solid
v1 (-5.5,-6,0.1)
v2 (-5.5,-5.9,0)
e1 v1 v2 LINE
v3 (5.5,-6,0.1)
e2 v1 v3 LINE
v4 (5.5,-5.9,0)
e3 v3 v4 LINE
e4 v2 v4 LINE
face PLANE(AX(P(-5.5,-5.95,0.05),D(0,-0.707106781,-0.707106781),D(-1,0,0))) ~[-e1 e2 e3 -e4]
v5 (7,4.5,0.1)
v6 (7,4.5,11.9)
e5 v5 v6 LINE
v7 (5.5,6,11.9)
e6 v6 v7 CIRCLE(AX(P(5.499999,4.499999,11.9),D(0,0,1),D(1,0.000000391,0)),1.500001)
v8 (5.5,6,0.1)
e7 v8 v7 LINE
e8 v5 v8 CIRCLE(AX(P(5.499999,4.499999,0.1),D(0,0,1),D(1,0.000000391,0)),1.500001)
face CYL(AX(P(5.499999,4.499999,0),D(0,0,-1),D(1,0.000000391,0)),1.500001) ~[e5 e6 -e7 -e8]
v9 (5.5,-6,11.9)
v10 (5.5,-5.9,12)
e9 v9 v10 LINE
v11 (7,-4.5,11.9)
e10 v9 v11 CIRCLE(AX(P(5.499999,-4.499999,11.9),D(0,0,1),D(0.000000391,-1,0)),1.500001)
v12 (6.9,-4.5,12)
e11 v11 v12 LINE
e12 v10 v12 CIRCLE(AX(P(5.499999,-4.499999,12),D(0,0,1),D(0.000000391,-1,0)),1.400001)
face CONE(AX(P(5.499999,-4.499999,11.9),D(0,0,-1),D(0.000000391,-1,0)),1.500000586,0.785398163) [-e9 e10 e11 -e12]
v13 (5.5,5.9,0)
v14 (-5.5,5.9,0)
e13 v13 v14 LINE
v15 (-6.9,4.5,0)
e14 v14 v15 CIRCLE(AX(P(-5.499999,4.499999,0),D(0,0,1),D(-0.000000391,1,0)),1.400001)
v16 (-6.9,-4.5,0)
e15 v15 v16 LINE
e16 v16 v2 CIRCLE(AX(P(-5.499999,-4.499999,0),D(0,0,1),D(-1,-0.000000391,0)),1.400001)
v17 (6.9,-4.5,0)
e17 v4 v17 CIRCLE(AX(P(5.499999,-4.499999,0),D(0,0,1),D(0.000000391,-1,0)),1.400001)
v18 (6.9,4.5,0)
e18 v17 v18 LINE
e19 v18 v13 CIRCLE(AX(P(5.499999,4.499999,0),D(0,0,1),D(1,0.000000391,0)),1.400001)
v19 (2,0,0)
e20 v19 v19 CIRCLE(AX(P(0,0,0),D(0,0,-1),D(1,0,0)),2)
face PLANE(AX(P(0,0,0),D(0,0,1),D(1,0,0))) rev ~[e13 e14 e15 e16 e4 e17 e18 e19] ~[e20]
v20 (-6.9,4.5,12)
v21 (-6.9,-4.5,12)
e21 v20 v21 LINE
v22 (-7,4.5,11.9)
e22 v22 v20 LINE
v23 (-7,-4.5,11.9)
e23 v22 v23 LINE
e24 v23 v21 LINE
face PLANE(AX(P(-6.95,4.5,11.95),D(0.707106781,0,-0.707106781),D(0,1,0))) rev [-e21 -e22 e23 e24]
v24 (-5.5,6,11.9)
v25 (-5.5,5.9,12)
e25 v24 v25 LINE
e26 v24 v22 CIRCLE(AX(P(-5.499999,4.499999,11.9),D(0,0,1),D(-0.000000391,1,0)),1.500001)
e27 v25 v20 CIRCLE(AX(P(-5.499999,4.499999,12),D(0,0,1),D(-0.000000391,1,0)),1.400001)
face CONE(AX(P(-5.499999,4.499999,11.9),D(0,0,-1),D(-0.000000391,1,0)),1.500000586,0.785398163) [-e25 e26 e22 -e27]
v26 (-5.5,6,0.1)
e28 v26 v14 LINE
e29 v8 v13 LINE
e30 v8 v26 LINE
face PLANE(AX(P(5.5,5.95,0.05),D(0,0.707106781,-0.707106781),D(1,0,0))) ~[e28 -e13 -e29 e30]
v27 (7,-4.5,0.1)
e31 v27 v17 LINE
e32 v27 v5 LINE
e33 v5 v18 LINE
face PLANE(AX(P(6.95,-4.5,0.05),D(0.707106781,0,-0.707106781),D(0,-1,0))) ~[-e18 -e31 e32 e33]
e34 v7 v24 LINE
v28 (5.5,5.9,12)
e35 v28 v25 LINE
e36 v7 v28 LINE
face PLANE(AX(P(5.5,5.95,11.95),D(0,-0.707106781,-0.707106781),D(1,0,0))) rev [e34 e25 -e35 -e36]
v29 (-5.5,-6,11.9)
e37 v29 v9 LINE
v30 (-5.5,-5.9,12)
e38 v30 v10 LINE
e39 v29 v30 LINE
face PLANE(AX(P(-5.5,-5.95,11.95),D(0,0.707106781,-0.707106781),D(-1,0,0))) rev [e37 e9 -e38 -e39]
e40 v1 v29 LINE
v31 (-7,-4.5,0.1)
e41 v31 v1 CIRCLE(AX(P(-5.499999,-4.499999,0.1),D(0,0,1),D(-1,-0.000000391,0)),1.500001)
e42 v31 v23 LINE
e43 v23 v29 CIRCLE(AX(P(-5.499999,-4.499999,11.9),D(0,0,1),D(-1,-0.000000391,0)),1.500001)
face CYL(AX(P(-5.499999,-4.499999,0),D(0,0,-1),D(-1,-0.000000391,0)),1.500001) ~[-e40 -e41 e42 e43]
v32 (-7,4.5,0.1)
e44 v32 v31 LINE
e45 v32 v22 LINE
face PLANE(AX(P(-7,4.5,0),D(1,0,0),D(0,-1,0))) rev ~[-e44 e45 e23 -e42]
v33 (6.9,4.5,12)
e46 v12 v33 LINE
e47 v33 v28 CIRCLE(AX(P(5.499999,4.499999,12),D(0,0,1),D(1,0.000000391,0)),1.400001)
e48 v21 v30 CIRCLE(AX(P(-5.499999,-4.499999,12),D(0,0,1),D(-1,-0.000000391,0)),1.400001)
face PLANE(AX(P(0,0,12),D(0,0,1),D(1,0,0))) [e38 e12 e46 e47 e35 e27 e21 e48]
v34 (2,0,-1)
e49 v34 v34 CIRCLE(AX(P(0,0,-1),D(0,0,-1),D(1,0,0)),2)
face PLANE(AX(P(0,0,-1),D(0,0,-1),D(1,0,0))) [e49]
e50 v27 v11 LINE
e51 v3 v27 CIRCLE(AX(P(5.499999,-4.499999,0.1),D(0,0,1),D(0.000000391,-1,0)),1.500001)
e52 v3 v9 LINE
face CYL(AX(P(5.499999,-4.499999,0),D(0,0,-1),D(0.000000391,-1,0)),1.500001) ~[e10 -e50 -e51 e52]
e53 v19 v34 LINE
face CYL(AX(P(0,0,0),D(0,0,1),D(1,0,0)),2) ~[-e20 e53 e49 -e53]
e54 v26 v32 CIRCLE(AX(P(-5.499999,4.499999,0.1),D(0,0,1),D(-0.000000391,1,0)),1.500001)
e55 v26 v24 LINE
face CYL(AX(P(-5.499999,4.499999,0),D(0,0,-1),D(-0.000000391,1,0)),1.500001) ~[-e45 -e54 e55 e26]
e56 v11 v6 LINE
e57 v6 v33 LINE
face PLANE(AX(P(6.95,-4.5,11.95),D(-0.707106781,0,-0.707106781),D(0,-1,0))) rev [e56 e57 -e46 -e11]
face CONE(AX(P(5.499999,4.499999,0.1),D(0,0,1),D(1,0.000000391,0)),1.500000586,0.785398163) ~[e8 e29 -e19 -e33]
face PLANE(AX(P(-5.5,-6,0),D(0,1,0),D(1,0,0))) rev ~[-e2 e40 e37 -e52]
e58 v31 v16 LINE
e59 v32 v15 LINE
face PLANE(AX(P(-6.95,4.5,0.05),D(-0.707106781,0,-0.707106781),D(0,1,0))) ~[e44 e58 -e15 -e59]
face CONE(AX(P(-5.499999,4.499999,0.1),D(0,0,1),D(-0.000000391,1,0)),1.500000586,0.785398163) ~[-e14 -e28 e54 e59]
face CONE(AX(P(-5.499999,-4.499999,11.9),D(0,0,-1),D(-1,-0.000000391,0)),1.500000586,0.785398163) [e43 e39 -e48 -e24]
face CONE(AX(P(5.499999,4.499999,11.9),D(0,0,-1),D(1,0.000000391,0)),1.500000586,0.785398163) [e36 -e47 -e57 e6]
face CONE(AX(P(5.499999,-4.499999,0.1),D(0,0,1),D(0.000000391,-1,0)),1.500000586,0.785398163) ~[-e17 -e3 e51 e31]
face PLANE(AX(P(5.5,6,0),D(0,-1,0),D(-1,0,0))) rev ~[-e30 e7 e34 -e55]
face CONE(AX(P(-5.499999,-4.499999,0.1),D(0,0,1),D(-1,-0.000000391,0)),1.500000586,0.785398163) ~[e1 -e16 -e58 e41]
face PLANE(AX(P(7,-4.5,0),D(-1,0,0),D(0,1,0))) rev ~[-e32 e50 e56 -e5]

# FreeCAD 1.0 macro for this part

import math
import FreeCAD as App
import Part
import Sketcher


def edges_at(feature, points):
    """Names of the edges that pass closest to the given points."""
    edges = feature.Shape.Edges
    near = lambda p: min(range(len(edges)), key=lambda i: edges[i].distToShape(Part.Vertex(*p))[0])
    return sorted({f"Edge{near(p) + 1}" for p in points})

doc = App.newDocument("Part")
body = doc.addObject("PartDesign::Body", "Body")

sketch1 = doc.addObject("Sketcher::SketchObject", "Sketch")
body.addObject(sketch1)
sketch1.AttachmentSupport = (doc.XY_Plane, [""])
sketch1.MapMode = "FlatFace"
sketch1.addGeometry(Part.LineSegment(App.Vector(-5.5, -6, 0), App.Vector(5.5, -6, 0)), False)
sketch1.addGeometry(Part.ArcOfCircle(Part.Circle(App.Vector(5.5, -4.5, 0), App.Vector(0, 0, 1), 1.5), math.radians(-90), math.radians(0)), False)
sketch1.addGeometry(Part.LineSegment(App.Vector(7, -4.5, 0), App.Vector(7, 4.5, 0)), False)
sketch1.addGeometry(Part.ArcOfCircle(Part.Circle(App.Vector(5.5, 4.5, 0), App.Vector(0, 0, 1), 1.5), math.radians(0), math.radians(90)), False)
sketch1.addGeometry(Part.LineSegment(App.Vector(5.5, 6, 0), App.Vector(-5.5, 6, 0)), False)
sketch1.addGeometry(Part.ArcOfCircle(Part.Circle(App.Vector(-5.5, 4.5, 0), App.Vector(0, 0, 1), 1.5), math.radians(90), math.radians(180)), False)
sketch1.addGeometry(Part.LineSegment(App.Vector(-7, 4.5, 0), App.Vector(-7, -4.5, 0)), False)
sketch1.addGeometry(Part.ArcOfCircle(Part.Circle(App.Vector(-5.5, -4.5, 0), App.Vector(0, 0, 1), 1.5), math.radians(-180), math.radians(-90)), False)
sketch1.addConstraint(Sketcher.Constraint("Tangent", 0, 2, 1, 1))
sketch1.addConstraint(Sketcher.Constraint("Tangent", 1, 2, 2, 1))
sketch1.addConstraint(Sketcher.Constraint("Tangent", 2, 2, 3, 1))
sketch1.addConstraint(Sketcher.Constraint("Tangent", 3, 2, 4, 1))
sketch1.addConstraint(Sketcher.Constraint("Tangent", 4, 2, 5, 1))
sketch1.addConstraint(Sketcher.Constraint("Tangent", 5, 2, 6, 1))
sketch1.addConstraint(Sketcher.Constraint("Tangent", 6, 2, 7, 1))
sketch1.addConstraint(Sketcher.Constraint("Tangent", 7, 2, 0, 1))
sketch1.addConstraint(Sketcher.Constraint("Horizontal", 0))
sketch1.addConstraint(Sketcher.Constraint("Vertical", 2))
sketch1.addConstraint(Sketcher.Constraint("Horizontal", 4))
sketch1.addConstraint(Sketcher.Constraint("Vertical", 6))
sketch1.addConstraint(Sketcher.Constraint("Equal", 1, 3))
sketch1.addConstraint(Sketcher.Constraint("Equal", 3, 5))
sketch1.addConstraint(Sketcher.Constraint("Equal", 5, 7))
sketch1.addConstraint(Sketcher.Constraint("Symmetric", 1, 3, 5, 3, -1, 1))
sketch1.addConstraint(Sketcher.Constraint("Radius", 1, 1.500001))
sketch1.addConstraint(Sketcher.Constraint("DistanceX", 0, 1, 0, 2, 11.0))
sketch1.addConstraint(Sketcher.Constraint("DistanceY", 2, 1, 2, 2, 9.0))
pad1 = doc.addObject("PartDesign::Pad", "Pad")
body.addObject(pad1)
pad1.Profile = sketch1
pad1.Length = 12
doc.recompute()

chamfer = doc.addObject("PartDesign::Chamfer", "Chamfer")
body.addObject(chamfer)
chamfer.Base = (pad1, edges_at(pad1, [
    (0, -6, 12),
    (6.561, -5.561, 12),
    (7, 0, 12),
    (6.561, 5.561, 12),
    (0, 6, 12),
    (-6.561, 5.561, 12),
    (-7, 0, 12),
    (-6.561, -5.561, 12),
    (0, -6, 0),
    (6.561, -5.561, 0),
    (7, 0, 0),
    (6.561, 5.561, 0),
    (0, 6, 0),
    (-6.561, 5.561, 0),
    (-7, 0, 0),
    (-6.561, -5.561, 0),
]))
chamfer.Size = 0.1

sketch2 = doc.addObject("Sketcher::SketchObject", "Sketch001")
body.addObject(sketch2)
sketch2.AttachmentSupport = (doc.XY_Plane, [""])
sketch2.MapMode = "FlatFace"
sketch2.addGeometry(Part.Circle(App.Vector(0, 0, 0), App.Vector(0, 0, 1), 2), False)
sketch2.addConstraint(Sketcher.Constraint("Coincident", 0, 3, -1, 1))
sketch2.addConstraint(Sketcher.Constraint("Diameter", 0, 4.0))
pad2 = doc.addObject("PartDesign::Pad", "Pad001")
body.addObject(pad2)
pad2.Profile = sketch2
pad2.Length = 1
pad2.Reversed = True

doc.recompute()
